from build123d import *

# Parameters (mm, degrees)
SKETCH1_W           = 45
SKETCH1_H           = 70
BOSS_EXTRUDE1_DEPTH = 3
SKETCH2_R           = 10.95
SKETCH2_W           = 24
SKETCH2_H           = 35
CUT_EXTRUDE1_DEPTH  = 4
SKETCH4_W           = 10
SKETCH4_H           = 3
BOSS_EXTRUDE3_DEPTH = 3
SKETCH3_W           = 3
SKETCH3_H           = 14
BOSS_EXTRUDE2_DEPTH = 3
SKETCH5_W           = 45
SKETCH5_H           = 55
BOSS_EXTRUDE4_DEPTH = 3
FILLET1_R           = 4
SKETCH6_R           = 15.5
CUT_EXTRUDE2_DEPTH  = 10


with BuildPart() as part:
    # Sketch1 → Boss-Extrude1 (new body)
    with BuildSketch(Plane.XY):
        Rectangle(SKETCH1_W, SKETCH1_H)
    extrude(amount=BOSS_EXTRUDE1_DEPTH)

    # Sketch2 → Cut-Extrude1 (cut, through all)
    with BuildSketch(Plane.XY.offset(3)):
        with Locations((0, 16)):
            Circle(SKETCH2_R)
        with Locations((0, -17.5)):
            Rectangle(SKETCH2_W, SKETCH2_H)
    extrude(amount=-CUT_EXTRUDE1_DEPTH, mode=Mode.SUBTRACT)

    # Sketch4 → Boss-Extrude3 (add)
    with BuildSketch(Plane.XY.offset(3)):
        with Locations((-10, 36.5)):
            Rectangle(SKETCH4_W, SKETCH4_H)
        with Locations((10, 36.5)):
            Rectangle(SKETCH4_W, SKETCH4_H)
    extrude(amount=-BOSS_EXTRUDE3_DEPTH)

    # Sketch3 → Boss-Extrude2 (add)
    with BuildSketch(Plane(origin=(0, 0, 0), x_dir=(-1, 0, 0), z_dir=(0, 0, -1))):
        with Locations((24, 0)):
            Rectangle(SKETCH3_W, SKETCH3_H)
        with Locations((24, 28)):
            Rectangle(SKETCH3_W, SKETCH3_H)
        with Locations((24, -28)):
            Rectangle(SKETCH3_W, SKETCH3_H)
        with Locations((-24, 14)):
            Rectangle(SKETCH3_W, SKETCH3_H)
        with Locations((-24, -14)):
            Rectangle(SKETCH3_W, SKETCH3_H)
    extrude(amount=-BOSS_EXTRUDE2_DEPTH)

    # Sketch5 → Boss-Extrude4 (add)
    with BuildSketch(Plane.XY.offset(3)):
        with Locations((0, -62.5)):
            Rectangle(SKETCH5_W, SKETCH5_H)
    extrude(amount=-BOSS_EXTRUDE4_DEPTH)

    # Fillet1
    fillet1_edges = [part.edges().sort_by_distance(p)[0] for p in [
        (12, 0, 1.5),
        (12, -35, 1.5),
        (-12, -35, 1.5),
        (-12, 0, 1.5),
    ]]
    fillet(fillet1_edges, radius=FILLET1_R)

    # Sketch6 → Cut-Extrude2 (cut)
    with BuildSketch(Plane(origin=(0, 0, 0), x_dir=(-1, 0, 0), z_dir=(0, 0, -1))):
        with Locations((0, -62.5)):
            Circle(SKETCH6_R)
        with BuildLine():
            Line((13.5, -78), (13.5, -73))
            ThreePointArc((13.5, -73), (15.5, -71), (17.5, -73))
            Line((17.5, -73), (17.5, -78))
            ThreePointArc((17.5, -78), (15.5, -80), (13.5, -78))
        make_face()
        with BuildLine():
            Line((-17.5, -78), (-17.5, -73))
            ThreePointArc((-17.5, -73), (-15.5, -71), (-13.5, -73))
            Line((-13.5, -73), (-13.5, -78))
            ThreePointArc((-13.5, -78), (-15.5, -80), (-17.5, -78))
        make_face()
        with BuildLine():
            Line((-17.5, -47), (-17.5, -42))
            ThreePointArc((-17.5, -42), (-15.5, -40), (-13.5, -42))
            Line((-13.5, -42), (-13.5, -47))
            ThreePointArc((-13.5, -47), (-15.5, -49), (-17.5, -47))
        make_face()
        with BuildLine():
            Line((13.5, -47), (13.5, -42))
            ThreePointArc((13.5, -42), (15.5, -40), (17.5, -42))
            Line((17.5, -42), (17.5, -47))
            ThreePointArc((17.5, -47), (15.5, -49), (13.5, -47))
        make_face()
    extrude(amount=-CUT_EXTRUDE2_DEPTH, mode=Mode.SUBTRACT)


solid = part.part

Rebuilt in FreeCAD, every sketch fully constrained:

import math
import FreeCAD as App
import Part
import Sketcher
from FreeCAD import Vector
Q = App.Units.Quantity


def edges_at(feature, points):
    """Names of the edges that pass closest to the given points."""
    edges = feature.Shape.Edges
    near = lambda p: min(range(len(edges)), key=lambda i: edges[i].distToShape(Part.Vertex(*p))[0])
    return sorted({f"Edge{near(p) + 1}" for p in points})

doc = App.newDocument("Part")
body = doc.addObject("PartDesign::Body", "Body")

# Sketch on XY plane
sketch1 = body.newObject("Sketcher::SketchObject", "Sketch")
sketch1.AttachmentSupport = (doc.getObject("XY_Plane"), [""])
sketch1.MapMode = "FlatFace"
sketch1.addGeometry(Part.LineSegment(Vector(-22, 35, 0), Vector(-22, -35, 0)), False)
sketch1.addGeometry(Part.LineSegment(Vector(-22, -35, 0), Vector(22, -35, 0)), False)
sketch1.addGeometry(Part.LineSegment(Vector(22, -35, 0), Vector(22, 35, 0)), False)
sketch1.addGeometry(Part.LineSegment(Vector(22, 35, 0), Vector(-22, 35, 0)), False)
sketch1.addConstraint(Sketcher.Constraint("Coincident", 0, 2, 1, 1))
sketch1.addConstraint(Sketcher.Constraint("Coincident", 1, 2, 2, 1))
sketch1.addConstraint(Sketcher.Constraint("Coincident", 2, 2, 3, 1))
sketch1.addConstraint(Sketcher.Constraint("Coincident", 3, 2, 0, 1))
sketch1.addConstraint(Sketcher.Constraint("Vertical", 0))
sketch1.addConstraint(Sketcher.Constraint("Horizontal", 1))
sketch1.addConstraint(Sketcher.Constraint("Vertical", 2))
sketch1.addConstraint(Sketcher.Constraint("Horizontal", 3))
sketch1.addConstraint(Sketcher.Constraint("Symmetric", 0, 2, 2, 2, -1, 1))
sketch1.addConstraint(Sketcher.Constraint("DistanceX", 1, 1, 1, 2, Q("45 mm")))
sketch1.addConstraint(Sketcher.Constraint("DistanceY", 0, 2, 0, 1, Q("70 mm")))
pad1 = body.newObject("PartDesign::Pad", "Pad")
pad1.Profile = sketch1
pad1.Length = 3

# Sketch on XY plane
sketch2 = body.newObject("Sketcher::SketchObject", "Sketch001")
sketch2.AttachmentSupport = (doc.getObject("XY_Plane"), [""])
sketch2.MapMode = "FlatFace"
sketch2.AttachmentOffset = App.Placement(Vector(0, 0, 3), App.Rotation())
sketch2.addGeometry(Part.Circle(Vector(0, 16, 0), Vector(0, 0, 1), 11), False)
sketch2.addGeometry(Part.LineSegment(Vector(-12, 0, 0), Vector(-12, -35, 0)), False)
sketch2.addGeometry(Part.LineSegment(Vector(-12, -35, 0), Vector(12, -35, 0)), False)
sketch2.addGeometry(Part.LineSegment(Vector(12, -35, 0), Vector(12, 0, 0)), False)
sketch2.addGeometry(Part.LineSegment(Vector(12, 0, 0), Vector(-12, 0, 0)), False)
sketch2.addConstraint(Sketcher.Constraint("Coincident", 1, 2, 2, 1))
sketch2.addConstraint(Sketcher.Constraint("Coincident", 2, 2, 3, 1))
sketch2.addConstraint(Sketcher.Constraint("Coincident", 3, 2, 4, 1))
sketch2.addConstraint(Sketcher.Constraint("Coincident", 4, 2, 1, 1))
sketch2.addConstraint(Sketcher.Constraint("Vertical", 1))
sketch2.addConstraint(Sketcher.Constraint("Horizontal", 2))
sketch2.addConstraint(Sketcher.Constraint("Vertical", 3))
sketch2.addConstraint(Sketcher.Constraint("Horizontal", 4))
sketch2.addConstraint(Sketcher.Constraint("Symmetric", 3, 2, 4, 2, -1, 1))
sketch2.addConstraint(Sketcher.Constraint("PointOnObject", 0, 3, -2))
sketch2.addConstraint(Sketcher.Constraint("Diameter", 0, Q("21.9 mm")))
sketch2.addConstraint(Sketcher.Constraint("DistanceX", 2, 1, 2, 2, Q("24 mm")))
sketch2.addConstraint(Sketcher.Constraint("DistanceY", 1, 2, 1, 1, Q("35 mm")))
sketch2.addConstraint(Sketcher.Constraint("DistanceY", -1, 1, 0, 3, Q("16 mm")))
pocket1 = body.newObject("PartDesign::Pocket", "Pocket")
pocket1.Profile = sketch2
pocket1.Type = "ThroughAll"

# Sketch on XY plane
sketch3 = body.newObject("Sketcher::SketchObject", "Sketch002")
sketch3.AttachmentSupport = (doc.getObject("XY_Plane"), [""])
sketch3.MapMode = "FlatFace"
sketch3.AttachmentOffset = App.Placement(Vector(0, 0, 3), App.Rotation())
sketch3.addGeometry(Part.LineSegment(Vector(-15, 38, 0), Vector(-15, 35, 0)), False)
sketch3.addGeometry(Part.LineSegment(Vector(-15, 35, 0), Vector(-5, 35, 0)), False)
sketch3.addGeometry(Part.LineSegment(Vector(-5, 35, 0), Vector(-5, 38, 0)), False)
sketch3.addGeometry(Part.LineSegment(Vector(-5, 38, 0), Vector(-15, 38, 0)), False)
sketch3.addGeometry(Part.LineSegment(Vector(5, 38, 0), Vector(5, 35, 0)), False)
sketch3.addGeometry(Part.LineSegment(Vector(5, 35, 0), Vector(15, 35, 0)), False)
sketch3.addGeometry(Part.LineSegment(Vector(15, 35, 0), Vector(15, 38, 0)), False)
sketch3.addGeometry(Part.LineSegment(Vector(15, 38, 0), Vector(5, 38, 0)), False)
sketch3.addConstraint(Sketcher.Constraint("Coincident", 0, 2, 1, 1))
sketch3.addConstraint(Sketcher.Constraint("Coincident", 1, 2, 2, 1))
sketch3.addConstraint(Sketcher.Constraint("Coincident", 2, 2, 3, 1))
sketch3.addConstraint(Sketcher.Constraint("Coincident", 3, 2, 0, 1))
sketch3.addConstraint(Sketcher.Constraint("Coincident", 4, 2, 5, 1))
sketch3.addConstraint(Sketcher.Constraint("Coincident", 5, 2, 6, 1))
sketch3.addConstraint(Sketcher.Constraint("Coincident", 6, 2, 7, 1))
sketch3.addConstraint(Sketcher.Constraint("Coincident", 7, 2, 4, 1))
sketch3.addConstraint(Sketcher.Constraint("Vertical", 0))
sketch3.addConstraint(Sketcher.Constraint("Horizontal", 1))
sketch3.addConstraint(Sketcher.Constraint("Vertical", 2))
sketch3.addConstraint(Sketcher.Constraint("Horizontal", 3))
sketch3.addConstraint(Sketcher.Constraint("Vertical", 4))
sketch3.addConstraint(Sketcher.Constraint("Horizontal", 5))
sketch3.addConstraint(Sketcher.Constraint("Vertical", 6))
sketch3.addConstraint(Sketcher.Constraint("Horizontal", 7))
sketch3.addConstraint(Sketcher.Constraint("Symmetric", 1, 2, 4, 2, -2))
sketch3.addConstraint(Sketcher.Constraint("Symmetric", 3, 2, 6, 2, -2))
sketch3.addConstraint(Sketcher.Constraint("DistanceX", 1, 1, 1, 2, Q("10 mm")))
sketch3.addConstraint(Sketcher.Constraint("DistanceY", 0, 2, 0, 1, Q("3 mm")))
sketch3.addConstraint(Sketcher.Constraint("DistanceX", 0, 2, -1, 1, Q("15 mm")))
sketch3.addConstraint(Sketcher.Constraint("DistanceY", -1, 1, 0, 2, Q("35 mm")))
pad2 = body.newObject("PartDesign::Pad", "Pad001")
pad2.Profile = sketch3
pad2.Length = 3
pad2.Reversed = True

# Sketch on XY plane
sketch4 = body.newObject("Sketcher::SketchObject", "Sketch003")
sketch4.AttachmentSupport = (doc.getObject("XY_Plane"), [""])
sketch4.MapMode = "FlatFace"
sketch4.addGeometry(Part.LineSegment(Vector(-22.5, 7, 0), Vector(-22.5, -7, 0)), False)
sketch4.addGeometry(Part.LineSegment(Vector(-22.5, -7, 0), Vector(-25.5, -7, 0)), False)
sketch4.addGeometry(Part.LineSegment(Vector(-25.5, -7, 0), Vector(-25.5, 7, 0)), False)
sketch4.addGeometry(Part.LineSegment(Vector(-25.5, 7, 0), Vector(-22.5, 7, 0)), False)
sketch4.addGeometry(Part.LineSegment(Vector(-22.5, 35, 0), Vector(-22.5, 21, 0)), False)
sketch4.addGeometry(Part.LineSegment(Vector(-22.5, 21, 0), Vector(-25.5, 21, 0)), False)
sketch4.addGeometry(Part.LineSegment(Vector(-25.5, 21, 0), Vector(-25.5, 35, 0)), False)
sketch4.addGeometry(Part.LineSegment(Vector(-25.5, 35, 0), Vector(-22.5, 35, 0)), False)
sketch4.addGeometry(Part.LineSegment(Vector(-22.5, -21, 0), Vector(-22.5, -35, 0)), False)
sketch4.addGeometry(Part.LineSegment(Vector(-22.5, -35, 0), Vector(-25.5, -35, 0)), False)
sketch4.addGeometry(Part.LineSegment(Vector(-25.5, -35, 0), Vector(-25.5, -21, 0)), False)
sketch4.addGeometry(Part.LineSegment(Vector(-25.5, -21, 0), Vector(-22.5, -21, 0)), False)
sketch4.addGeometry(Part.LineSegment(Vector(25.5, 21, 0), Vector(25.5, 7, 0)), False)
sketch4.addGeometry(Part.LineSegment(Vector(25.5, 7, 0), Vector(22.5, 7, 0)), False)
sketch4.addGeometry(Part.LineSegment(Vector(22.5, 7, 0), Vector(22.5, 21, 0)), False)
sketch4.addGeometry(Part.LineSegment(Vector(22.5, 21, 0), Vector(25.5, 21, 0)), False)
sketch4.addGeometry(Part.LineSegment(Vector(25.5, -7, 0), Vector(25.5, -21, 0)), False)
sketch4.addGeometry(Part.LineSegment(Vector(25.5, -21, 0), Vector(22.5, -21, 0)), False)
sketch4.addGeometry(Part.LineSegment(Vector(22.5, -21, 0), Vector(22.5, -7, 0)), False)
sketch4.addGeometry(Part.LineSegment(Vector(22.5, -7, 0), Vector(25.5, -7, 0)), False)
sketch4.addConstraint(Sketcher.Constraint("Coincident", 0, 2, 1, 1))
sketch4.addConstraint(Sketcher.Constraint("Coincident", 1, 2, 2, 1))
sketch4.addConstraint(Sketcher.Constraint("Coincident", 2, 2, 3, 1))
sketch4.addConstraint(Sketcher.Constraint("Coincident", 3, 2, 0, 1))
sketch4.addConstraint(Sketcher.Constraint("Coincident", 4, 2, 5, 1))
sketch4.addConstraint(Sketcher.Constraint("Coincident", 5, 2, 6, 1))
sketch4.addConstraint(Sketcher.Constraint("Coincident", 6, 2, 7, 1))
sketch4.addConstraint(Sketcher.Constraint("Coincident", 7, 2, 4, 1))
sketch4.addConstraint(Sketcher.Constraint("Coincident", 8, 2, 9, 1))
sketch4.addConstraint(Sketcher.Constraint("Coincident", 9, 2, 10, 1))
sketch4.addConstraint(Sketcher.Constraint("Coincident", 10, 2, 11, 1))
sketch4.addConstraint(Sketcher.Constraint("Coincident", 11, 2, 8, 1))
sketch4.addConstraint(Sketcher.Constraint("Coincident", 12, 2, 13, 1))
sketch4.addConstraint(Sketcher.Constraint("Coincident", 13, 2, 14, 1))
sketch4.addConstraint(Sketcher.Constraint("Coincident", 14, 2, 15, 1))
sketch4.addConstraint(Sketcher.Constraint("Coincident", 15, 2, 12, 1))
sketch4.addConstraint(Sketcher.Constraint("Coincident", 16, 2, 17, 1))
sketch4.addConstraint(Sketcher.Constraint("Coincident", 17, 2, 18, 1))
sketch4.addConstraint(Sketcher.Constraint("Coincident", 18, 2, 19, 1))
sketch4.addConstraint(Sketcher.Constraint("Coincident", 19, 2, 16, 1))
sketch4.addConstraint(Sketcher.Constraint("Vertical", 0))
sketch4.addConstraint(Sketcher.Constraint("Horizontal", 1))
sketch4.addConstraint(Sketcher.Constraint("Vertical", 2))
sketch4.addConstraint(Sketcher.Constraint("Horizontal", 3))
sketch4.addConstraint(Sketcher.Constraint("Vertical", 4))
sketch4.addConstraint(Sketcher.Constraint("Horizontal", 5))
sketch4.addConstraint(Sketcher.Constraint("Vertical", 6))
sketch4.addConstraint(Sketcher.Constraint("Horizontal", 7))
sketch4.addConstraint(Sketcher.Constraint("Vertical", 8))
sketch4.addConstraint(Sketcher.Constraint("Horizontal", 9))
sketch4.addConstraint(Sketcher.Constraint("Vertical", 10))
sketch4.addConstraint(Sketcher.Constraint("Horizontal", 11))
sketch4.addConstraint(Sketcher.Constraint("Vertical", 12))
sketch4.addConstraint(Sketcher.Constraint("Horizontal", 13))
sketch4.addConstraint(Sketcher.Constraint("Vertical", 14))
sketch4.addConstraint(Sketcher.Constraint("Horizontal", 15))
sketch4.addConstraint(Sketcher.Constraint("Vertical", 16))
sketch4.addConstraint(Sketcher.Constraint("Horizontal", 17))
sketch4.addConstraint(Sketcher.Constraint("Vertical", 18))
sketch4.addConstraint(Sketcher.Constraint("Horizontal", 19))
sketch4.addConstraint(Sketcher.Constraint("Symmetric", 1, 2, 12, 2, -1, 1))
sketch4.addConstraint(Sketcher.Constraint("Symmetric", 11, 2, 14, 2, -1, 1))
sketch4.addConstraint(Sketcher.Constraint("Symmetric", 5, 2, 16, 2, -1, 1))
sketch4.addConstraint(Sketcher.Constraint("Symmetric", 3, 2, 18, 2, -1, 1))
sketch4.addConstraint(Sketcher.Constraint("Symmetric", 3, 2, 13, 2, -2))
sketch4.addConstraint(Sketcher.Constraint("Symmetric", 4, 2, 14, 2, -2))
sketch4.addConstraint(Sketcher.Constraint("Symmetric", 6, 2, 9, 2, -1))
sketch4.addConstraint(Sketcher.Constraint("Vertical", 2, 2, 5, 2))
sketch4.addConstraint(Sketcher.Constraint("Equal", 2, 4))
sketch4.addConstraint(Sketcher.Constraint("Equal", 10, 12))
sketch4.addConstraint(Sketcher.Constraint("DistanceX", 1, 2, 1, 1, Q("3 mm")))
sketch4.addConstraint(Sketcher.Constraint("DistanceY", 0, 2, 0, 1, Q("14 mm")))
sketch4.addConstraint(Sketcher.Constraint("DistanceX", 3, 2, 12, 2, Q("48 mm")))
pad3 = body.newObject("PartDesign::Pad", "Pad002")
pad3.Profile = sketch4
pad3.Length = 3

# Sketch on XY plane
sketch5 = body.newObject("Sketcher::SketchObject", "Sketch004")
sketch5.AttachmentSupport = (doc.getObject("XY_Plane"), [""])
sketch5.MapMode = "FlatFace"
sketch5.AttachmentOffset = App.Placement(Vector(0, 0, 3), App.Rotation())
sketch5.addGeometry(Part.LineSegment(Vector(-22, -35, 0), Vector(-22, -90, 0)), False)
sketch5.addGeometry(Part.LineSegment(Vector(-22, -90, 0), Vector(22, -90, 0)), False)
sketch5.addGeometry(Part.LineSegment(Vector(22, -90, 0), Vector(22, -35, 0)), False)
sketch5.addGeometry(Part.LineSegment(Vector(22, -35, 0), Vector(-22, -35, 0)), False)
sketch5.addConstraint(Sketcher.Constraint("Coincident", 0, 2, 1, 1))
sketch5.addConstraint(Sketcher.Constraint("Coincident", 1, 2, 2, 1))
sketch5.addConstraint(Sketcher.Constraint("Coincident", 2, 2, 3, 1))
sketch5.addConstraint(Sketcher.Constraint("Coincident", 3, 2, 0, 1))
sketch5.addConstraint(Sketcher.Constraint("Vertical", 0))
sketch5.addConstraint(Sketcher.Constraint("Horizontal", 1))
sketch5.addConstraint(Sketcher.Constraint("Vertical", 2))
sketch5.addConstraint(Sketcher.Constraint("Horizontal", 3))
sketch5.addConstraint(Sketcher.Constraint("DistanceX", 1, 1, 1, 2, Q("45 mm")))
sketch5.addConstraint(Sketcher.Constraint("DistanceY", 0, 2, 0, 1, Q("55 mm")))
sketch5.addConstraint(Sketcher.Constraint("DistanceY", 0, 2, -1, 1, Q("90 mm")))
sketch5.addConstraint(Sketcher.Constraint("DistanceX", 0, 2, -1, 1, Q("22.5 mm")))
pad4 = body.newObject("PartDesign::Pad", "Pad003")
pad4.Profile = sketch5
pad4.Length = 3
pad4.Reversed = True
doc.recompute()

fillet = body.newObject("PartDesign::Fillet", "Fillet")
fillet.Base = (pad4, edges_at(pad4, [
    (12, 0, 1.5),
    (12, -35, 1.5),
    (-12, -35, 1.5),
    (-12, 0, 1.5),
]))
fillet.Radius = 4

# Sketch on XY plane
sketch6 = body.newObject("Sketcher::SketchObject", "Sketch005")
sketch6.AttachmentSupport = (doc.getObject("XY_Plane"), [""])
sketch6.MapMode = "FlatFace"
sketch6.addGeometry(Part.Circle(Vector(0, -62.5, 0), Vector(0, 0, 1), 15.5), False)
sketch6.addGeometry(Part.LineSegment(Vector(-13.5, -73, 0), Vector(-13.5, -78, 0)), False)
sketch6.addGeometry(Part.ArcOfCircle(Part.Circle(Vector(-15.5, -78, 0), Vector(0, 0, 1), 2), math.radians(180), math.radians(360)), False)
sketch6.addGeometry(Part.LineSegment(Vector(-17.5, -78, 0), Vector(-17.5, -73, 0)), False)
sketch6.addGeometry(Part.ArcOfCircle(Part.Circle(Vector(-15.5, -73, 0), Vector(0, 0, 1), 2), math.radians(0), math.radians(180)), False)
sketch6.addGeometry(Part.LineSegment(Vector(17.5, -73, 0), Vector(17.5, -78, 0)), False)
sketch6.addGeometry(Part.ArcOfCircle(Part.Circle(Vector(15.5, -78, 0), Vector(0, 0, 1), 2), math.radians(180), math.radians(360)), False)
sketch6.addGeometry(Part.LineSegment(Vector(13.5, -78, 0), Vector(13.5, -73, 0)), False)
sketch6.addGeometry(Part.ArcOfCircle(Part.Circle(Vector(15.5, -73, 0), Vector(0, 0, 1), 2), math.radians(0), math.radians(180)), False)
sketch6.addGeometry(Part.LineSegment(Vector(17.5, -42, 0), Vector(17.5, -47, 0)), False)
sketch6.addGeometry(Part.ArcOfCircle(Part.Circle(Vector(15.5, -47, 0), Vector(0, 0, 1), 2), math.radians(180), math.radians(360)), False)
sketch6.addGeometry(Part.LineSegment(Vector(13.5, -47, 0), Vector(13.5, -42, 0)), False)
sketch6.addGeometry(Part.ArcOfCircle(Part.Circle(Vector(15.5, -42, 0), Vector(0, 0, 1), 2), math.radians(0), math.radians(180)), False)
sketch6.addGeometry(Part.LineSegment(Vector(-13.5, -42, 0), Vector(-13.5, -47, 0)), False)
sketch6.addGeometry(Part.ArcOfCircle(Part.Circle(Vector(-15.5, -47, 0), Vector(0, 0, 1), 2), math.radians(180), math.radians(360)), False)
sketch6.addGeometry(Part.LineSegment(Vector(-17.5, -47, 0), Vector(-17.5, -42, 0)), False)
sketch6.addGeometry(Part.ArcOfCircle(Part.Circle(Vector(-15.5, -42, 0), Vector(0, 0, 1), 2), math.radians(0), math.radians(180)), False)
sketch6.addConstraint(Sketcher.Constraint("Tangent", 1, 2, 2, 2))
sketch6.addConstraint(Sketcher.Constraint("Tangent", 2, 1, 3, 1))
sketch6.addConstraint(Sketcher.Constraint("Tangent", 3, 2, 4, 2))
sketch6.addConstraint(Sketcher.Constraint("Tangent", 4, 1, 1, 1))
sketch6.addConstraint(Sketcher.Constraint("Tangent", 5, 2, 6, 2))
sketch6.addConstraint(Sketcher.Constraint("Tangent", 6, 1, 7, 1))
sketch6.addConstraint(Sketcher.Constraint("Tangent", 7, 2, 8, 2))
sketch6.addConstraint(Sketcher.Constraint("Tangent", 8, 1, 5, 1))
sketch6.addConstraint(Sketcher.Constraint("Tangent", 9, 2, 10, 2))
sketch6.addConstraint(Sketcher.Constraint("Tangent", 10, 1, 11, 1))
sketch6.addConstraint(Sketcher.Constraint("Tangent", 11, 2, 12, 2))
sketch6.addConstraint(Sketcher.Constraint("Tangent", 12, 1, 9, 1))
sketch6.addConstraint(Sketcher.Constraint("Tangent", 13, 2, 14, 2))
sketch6.addConstraint(Sketcher.Constraint("Tangent", 14, 1, 15, 1))
sketch6.addConstraint(Sketcher.Constraint("Tangent", 15, 2, 16, 2))
sketch6.addConstraint(Sketcher.Constraint("Tangent", 16, 1, 13, 1))
sketch6.addConstraint(Sketcher.Constraint("Vertical", 1))
sketch6.addConstraint(Sketcher.Constraint("Vertical", 3))
sketch6.addConstraint(Sketcher.Constraint("Vertical", 5))
sketch6.addConstraint(Sketcher.Constraint("Vertical", 7))
sketch6.addConstraint(Sketcher.Constraint("Vertical", 9))
sketch6.addConstraint(Sketcher.Constraint("Vertical", 11))
sketch6.addConstraint(Sketcher.Constraint("Vertical", 13))
sketch6.addConstraint(Sketcher.Constraint("Vertical", 15))
sketch6.addConstraint(Sketcher.Constraint("Equal", 4, 6))
sketch6.addConstraint(Sketcher.Constraint("Equal", 8, 10))
sketch6.addConstraint(Sketcher.Constraint("Equal", 12, 14))
sketch6.addConstraint(Sketcher.Constraint("Symmetric", 2, 3, 6, 3, -2))
sketch6.addConstraint(Sketcher.Constraint("Symmetric", 10, 3, 14, 3, -2))
sketch6.addConstraint(Sketcher.Constraint("PointOnObject", 0, 3, -2))
sketch6.addConstraint(Sketcher.Constraint("Horizontal", 4, 3, 8, 3))
sketch6.addConstraint(Sketcher.Constraint("Horizontal", 12, 3, 16, 3))
sketch6.addConstraint(Sketcher.Constraint("Vertical", 8, 3, 10, 3))
sketch6.addConstraint(Sketcher.Constraint("Equal", 7, 9))
sketch6.addConstraint(Sketcher.Constraint("Diameter", 0, Q("31 mm")))
sketch6.addConstraint(Sketcher.Constraint("Radius", 2, Q("2 mm")))
sketch6.addConstraint(Sketcher.Constraint("DistanceY", 1, 2, 1, 1, Q("5 mm")))
sketch6.addConstraint(Sketcher.Constraint("DistanceY", 2, 3, -1, 1, Q("78 mm")))
sketch6.addConstraint(Sketcher.Constraint("DistanceY", 10, 3, -1, 1, Q("47 mm")))
sketch6.addConstraint(Sketcher.Constraint("DistanceX", 2, 3, 6, 3, Q("31 mm")))
sketch6.addConstraint(Sketcher.Constraint("DistanceY", 0, 3, -1, 1, Q("62.5 mm")))
pocket2 = body.newObject("PartDesign::Pocket", "Pocket001")
pocket2.Profile = sketch6
pocket2.Length = 10
pocket2.Reversed = True

doc.recompute()
